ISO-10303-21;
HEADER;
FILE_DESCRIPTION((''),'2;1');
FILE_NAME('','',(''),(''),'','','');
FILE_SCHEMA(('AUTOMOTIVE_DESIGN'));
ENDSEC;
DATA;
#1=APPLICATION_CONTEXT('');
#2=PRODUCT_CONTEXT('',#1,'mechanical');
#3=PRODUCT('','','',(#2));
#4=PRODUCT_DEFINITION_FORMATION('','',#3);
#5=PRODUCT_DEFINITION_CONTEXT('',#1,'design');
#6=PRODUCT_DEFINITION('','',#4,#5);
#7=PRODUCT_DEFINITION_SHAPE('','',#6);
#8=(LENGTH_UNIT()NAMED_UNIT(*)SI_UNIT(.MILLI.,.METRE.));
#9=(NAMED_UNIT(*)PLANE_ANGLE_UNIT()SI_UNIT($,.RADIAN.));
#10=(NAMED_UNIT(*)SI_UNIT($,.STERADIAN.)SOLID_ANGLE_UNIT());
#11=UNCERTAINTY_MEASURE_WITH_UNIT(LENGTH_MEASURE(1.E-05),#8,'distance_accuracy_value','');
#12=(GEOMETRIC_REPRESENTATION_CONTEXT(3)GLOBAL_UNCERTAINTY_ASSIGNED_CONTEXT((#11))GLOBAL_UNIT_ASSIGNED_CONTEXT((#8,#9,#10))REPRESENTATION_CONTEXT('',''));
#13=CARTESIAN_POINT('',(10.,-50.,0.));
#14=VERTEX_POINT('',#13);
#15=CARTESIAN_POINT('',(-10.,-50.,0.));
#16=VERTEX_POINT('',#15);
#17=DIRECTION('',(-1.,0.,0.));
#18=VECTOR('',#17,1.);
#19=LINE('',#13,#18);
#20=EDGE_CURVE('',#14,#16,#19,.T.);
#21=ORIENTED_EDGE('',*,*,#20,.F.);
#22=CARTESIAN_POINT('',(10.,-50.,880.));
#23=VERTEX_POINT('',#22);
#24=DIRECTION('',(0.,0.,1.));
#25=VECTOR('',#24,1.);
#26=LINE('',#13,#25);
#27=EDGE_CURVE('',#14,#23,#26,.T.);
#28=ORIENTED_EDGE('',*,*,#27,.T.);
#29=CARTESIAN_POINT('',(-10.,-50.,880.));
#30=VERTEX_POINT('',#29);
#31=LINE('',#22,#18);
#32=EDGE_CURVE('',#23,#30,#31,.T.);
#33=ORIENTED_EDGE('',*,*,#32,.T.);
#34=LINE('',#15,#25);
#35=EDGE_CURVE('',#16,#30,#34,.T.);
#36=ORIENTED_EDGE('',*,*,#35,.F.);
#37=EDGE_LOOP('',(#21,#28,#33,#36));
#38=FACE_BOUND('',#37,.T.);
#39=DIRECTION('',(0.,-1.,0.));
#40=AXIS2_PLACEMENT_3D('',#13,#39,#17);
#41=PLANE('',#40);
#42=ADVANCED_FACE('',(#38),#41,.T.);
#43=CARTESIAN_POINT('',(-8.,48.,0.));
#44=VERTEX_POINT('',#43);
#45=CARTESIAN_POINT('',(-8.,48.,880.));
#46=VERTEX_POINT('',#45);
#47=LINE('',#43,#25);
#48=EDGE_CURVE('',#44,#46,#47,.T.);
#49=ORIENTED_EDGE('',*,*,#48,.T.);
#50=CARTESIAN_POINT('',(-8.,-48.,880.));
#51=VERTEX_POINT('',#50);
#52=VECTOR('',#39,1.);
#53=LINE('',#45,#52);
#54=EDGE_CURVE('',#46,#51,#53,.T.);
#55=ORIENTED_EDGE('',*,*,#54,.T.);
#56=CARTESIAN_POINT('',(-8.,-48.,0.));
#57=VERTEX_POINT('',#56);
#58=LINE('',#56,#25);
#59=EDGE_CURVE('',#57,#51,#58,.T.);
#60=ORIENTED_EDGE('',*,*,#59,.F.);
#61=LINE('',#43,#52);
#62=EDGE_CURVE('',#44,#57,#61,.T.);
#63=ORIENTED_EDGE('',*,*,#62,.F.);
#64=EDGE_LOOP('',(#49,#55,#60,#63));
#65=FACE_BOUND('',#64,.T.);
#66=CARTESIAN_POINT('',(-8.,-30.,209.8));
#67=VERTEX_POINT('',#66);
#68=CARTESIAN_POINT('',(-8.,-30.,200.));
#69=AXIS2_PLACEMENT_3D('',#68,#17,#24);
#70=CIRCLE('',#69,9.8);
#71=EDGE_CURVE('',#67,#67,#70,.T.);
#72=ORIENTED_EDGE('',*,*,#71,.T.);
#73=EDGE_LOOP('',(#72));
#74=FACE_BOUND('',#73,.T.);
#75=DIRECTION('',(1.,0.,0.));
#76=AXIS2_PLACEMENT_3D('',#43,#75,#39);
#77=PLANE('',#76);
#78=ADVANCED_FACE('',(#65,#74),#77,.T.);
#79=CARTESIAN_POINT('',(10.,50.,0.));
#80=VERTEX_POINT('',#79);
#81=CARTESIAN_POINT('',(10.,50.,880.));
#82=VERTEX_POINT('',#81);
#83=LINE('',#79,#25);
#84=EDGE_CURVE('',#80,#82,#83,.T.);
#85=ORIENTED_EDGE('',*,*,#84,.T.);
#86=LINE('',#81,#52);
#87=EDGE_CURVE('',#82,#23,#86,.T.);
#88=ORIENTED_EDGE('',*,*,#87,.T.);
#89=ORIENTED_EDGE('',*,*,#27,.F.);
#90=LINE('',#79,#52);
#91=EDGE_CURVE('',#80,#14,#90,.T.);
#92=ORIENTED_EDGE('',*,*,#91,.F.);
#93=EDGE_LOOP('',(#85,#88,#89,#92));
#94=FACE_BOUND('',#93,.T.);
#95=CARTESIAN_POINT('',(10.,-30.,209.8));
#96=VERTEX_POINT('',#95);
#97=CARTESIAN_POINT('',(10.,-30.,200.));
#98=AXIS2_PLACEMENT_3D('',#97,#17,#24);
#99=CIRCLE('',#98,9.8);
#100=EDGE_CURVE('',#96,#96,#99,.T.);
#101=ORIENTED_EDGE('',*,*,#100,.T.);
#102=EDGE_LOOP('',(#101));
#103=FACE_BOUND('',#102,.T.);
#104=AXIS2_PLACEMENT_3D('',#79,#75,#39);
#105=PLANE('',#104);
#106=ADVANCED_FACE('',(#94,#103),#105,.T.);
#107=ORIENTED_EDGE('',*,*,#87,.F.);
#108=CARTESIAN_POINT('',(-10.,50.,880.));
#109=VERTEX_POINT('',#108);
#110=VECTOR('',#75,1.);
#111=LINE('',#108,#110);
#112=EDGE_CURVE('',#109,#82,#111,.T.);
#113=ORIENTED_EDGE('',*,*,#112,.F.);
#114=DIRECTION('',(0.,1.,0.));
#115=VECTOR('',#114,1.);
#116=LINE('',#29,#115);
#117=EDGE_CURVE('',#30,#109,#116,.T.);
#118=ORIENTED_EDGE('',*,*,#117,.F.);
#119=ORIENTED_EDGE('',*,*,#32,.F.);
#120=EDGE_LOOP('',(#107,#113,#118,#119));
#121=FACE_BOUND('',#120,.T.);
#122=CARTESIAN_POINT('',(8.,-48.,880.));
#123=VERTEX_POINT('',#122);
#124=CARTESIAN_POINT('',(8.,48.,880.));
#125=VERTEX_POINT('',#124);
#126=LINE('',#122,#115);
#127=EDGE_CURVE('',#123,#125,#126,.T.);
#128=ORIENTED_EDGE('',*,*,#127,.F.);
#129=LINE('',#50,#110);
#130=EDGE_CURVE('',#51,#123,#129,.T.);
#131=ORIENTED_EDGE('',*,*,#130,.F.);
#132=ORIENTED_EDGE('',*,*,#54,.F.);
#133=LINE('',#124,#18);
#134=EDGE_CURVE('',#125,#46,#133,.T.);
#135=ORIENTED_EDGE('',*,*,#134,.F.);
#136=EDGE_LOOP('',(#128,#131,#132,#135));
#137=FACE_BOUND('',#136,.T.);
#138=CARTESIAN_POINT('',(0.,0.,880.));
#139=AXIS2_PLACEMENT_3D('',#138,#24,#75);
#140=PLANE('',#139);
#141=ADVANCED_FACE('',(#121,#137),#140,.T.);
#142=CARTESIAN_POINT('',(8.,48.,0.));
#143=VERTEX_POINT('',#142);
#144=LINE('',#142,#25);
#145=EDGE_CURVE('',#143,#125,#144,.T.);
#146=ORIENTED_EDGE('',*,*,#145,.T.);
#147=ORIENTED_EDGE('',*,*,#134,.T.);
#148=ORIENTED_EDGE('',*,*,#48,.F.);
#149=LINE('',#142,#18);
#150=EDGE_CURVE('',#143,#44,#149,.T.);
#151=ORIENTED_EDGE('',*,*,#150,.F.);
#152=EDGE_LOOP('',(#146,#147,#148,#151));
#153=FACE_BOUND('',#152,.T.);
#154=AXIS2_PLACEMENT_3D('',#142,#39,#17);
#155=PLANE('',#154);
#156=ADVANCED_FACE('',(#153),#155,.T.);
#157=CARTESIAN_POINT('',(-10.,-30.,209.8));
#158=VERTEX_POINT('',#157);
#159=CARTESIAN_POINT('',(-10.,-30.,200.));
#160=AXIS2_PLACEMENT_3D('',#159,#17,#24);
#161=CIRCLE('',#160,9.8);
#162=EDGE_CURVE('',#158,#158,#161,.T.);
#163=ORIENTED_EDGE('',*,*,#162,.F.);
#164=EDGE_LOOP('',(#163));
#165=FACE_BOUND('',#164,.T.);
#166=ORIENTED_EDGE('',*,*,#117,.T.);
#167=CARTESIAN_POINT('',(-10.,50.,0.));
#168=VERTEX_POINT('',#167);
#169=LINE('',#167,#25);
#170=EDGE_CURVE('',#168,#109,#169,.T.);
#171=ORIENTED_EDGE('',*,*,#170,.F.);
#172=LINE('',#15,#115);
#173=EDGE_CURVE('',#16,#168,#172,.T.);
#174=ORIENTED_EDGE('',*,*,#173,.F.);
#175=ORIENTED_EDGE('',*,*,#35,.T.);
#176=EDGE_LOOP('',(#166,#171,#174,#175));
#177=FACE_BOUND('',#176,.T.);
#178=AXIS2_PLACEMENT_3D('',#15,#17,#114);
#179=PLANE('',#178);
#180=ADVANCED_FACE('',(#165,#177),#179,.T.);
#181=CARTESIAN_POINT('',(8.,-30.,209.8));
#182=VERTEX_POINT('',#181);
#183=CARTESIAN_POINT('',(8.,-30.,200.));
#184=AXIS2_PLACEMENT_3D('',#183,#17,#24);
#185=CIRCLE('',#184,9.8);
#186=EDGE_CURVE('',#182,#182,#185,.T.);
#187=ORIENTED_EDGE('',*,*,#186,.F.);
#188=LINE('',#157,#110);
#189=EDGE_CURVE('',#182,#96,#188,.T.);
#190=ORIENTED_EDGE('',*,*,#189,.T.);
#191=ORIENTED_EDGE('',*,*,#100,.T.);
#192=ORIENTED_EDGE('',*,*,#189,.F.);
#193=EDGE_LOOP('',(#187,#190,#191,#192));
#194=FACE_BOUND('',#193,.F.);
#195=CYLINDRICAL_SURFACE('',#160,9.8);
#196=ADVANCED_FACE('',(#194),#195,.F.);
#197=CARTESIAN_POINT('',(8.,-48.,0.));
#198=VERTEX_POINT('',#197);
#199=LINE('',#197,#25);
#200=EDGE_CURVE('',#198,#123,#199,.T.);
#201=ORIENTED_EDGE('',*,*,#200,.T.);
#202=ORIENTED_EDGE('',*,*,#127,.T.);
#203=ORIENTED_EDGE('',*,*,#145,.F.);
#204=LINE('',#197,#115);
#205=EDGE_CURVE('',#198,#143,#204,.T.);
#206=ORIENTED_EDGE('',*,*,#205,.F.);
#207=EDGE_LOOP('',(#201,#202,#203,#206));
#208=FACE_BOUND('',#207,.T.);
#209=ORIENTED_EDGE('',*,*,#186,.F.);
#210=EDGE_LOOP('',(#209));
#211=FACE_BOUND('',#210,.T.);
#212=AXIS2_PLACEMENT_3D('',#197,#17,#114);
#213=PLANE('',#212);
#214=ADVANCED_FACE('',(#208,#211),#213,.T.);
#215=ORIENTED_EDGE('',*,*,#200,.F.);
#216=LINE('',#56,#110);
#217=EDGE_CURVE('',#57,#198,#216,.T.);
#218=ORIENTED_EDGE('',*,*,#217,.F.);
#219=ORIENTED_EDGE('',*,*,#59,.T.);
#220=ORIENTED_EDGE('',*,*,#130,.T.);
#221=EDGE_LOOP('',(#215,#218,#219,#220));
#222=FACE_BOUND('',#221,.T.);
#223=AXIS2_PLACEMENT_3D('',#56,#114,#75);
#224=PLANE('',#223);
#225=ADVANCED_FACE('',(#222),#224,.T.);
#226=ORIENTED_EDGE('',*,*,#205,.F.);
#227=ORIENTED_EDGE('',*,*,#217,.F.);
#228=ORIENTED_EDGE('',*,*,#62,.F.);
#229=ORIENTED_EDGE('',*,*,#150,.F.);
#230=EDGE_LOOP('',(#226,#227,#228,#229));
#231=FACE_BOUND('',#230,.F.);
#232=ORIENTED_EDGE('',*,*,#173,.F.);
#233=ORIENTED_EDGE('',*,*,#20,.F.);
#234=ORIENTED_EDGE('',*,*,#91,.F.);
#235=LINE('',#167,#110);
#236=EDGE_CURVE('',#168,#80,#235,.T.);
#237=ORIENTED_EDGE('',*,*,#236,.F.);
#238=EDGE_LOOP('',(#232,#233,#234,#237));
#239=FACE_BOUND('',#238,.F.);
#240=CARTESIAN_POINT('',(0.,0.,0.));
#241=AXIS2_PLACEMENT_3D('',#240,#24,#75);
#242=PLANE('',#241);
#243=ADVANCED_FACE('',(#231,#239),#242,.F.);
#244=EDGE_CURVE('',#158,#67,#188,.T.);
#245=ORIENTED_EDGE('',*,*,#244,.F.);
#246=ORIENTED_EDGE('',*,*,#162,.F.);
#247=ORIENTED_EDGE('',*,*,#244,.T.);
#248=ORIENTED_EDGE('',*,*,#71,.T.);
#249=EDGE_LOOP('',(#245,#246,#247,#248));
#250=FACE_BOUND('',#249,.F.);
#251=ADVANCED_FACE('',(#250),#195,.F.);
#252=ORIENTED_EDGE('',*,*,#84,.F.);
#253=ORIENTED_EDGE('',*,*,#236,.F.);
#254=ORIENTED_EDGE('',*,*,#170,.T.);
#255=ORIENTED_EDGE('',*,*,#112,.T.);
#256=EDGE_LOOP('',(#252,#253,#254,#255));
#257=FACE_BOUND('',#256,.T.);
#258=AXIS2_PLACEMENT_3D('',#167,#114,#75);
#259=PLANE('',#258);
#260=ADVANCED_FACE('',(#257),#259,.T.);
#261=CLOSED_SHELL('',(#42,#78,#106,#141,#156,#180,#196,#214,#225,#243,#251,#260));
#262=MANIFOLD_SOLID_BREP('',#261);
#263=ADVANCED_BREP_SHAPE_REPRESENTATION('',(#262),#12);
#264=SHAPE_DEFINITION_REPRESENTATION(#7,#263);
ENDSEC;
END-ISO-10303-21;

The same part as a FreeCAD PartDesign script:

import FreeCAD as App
import Part
import Sketcher
Q = App.Units.Quantity

doc = App.newDocument("Part")
body = doc.addObject("PartDesign::Body", "Body")

sketch1 = body.newObject("Sketcher::SketchObject", "Sketch")
sketch1.AttachmentSupport = (doc.getObject("XY_Plane"), [""])
sketch1.MapMode = "FlatFace"
sketch1.addGeometry(Part.LineSegment(App.Vector(10, 50, 0), App.Vector(-10, 50, 0)), False)
sketch1.addGeometry(Part.LineSegment(App.Vector(-10, 50, 0), App.Vector(-10, -50, 0)), False)
sketch1.addGeometry(Part.LineSegment(App.Vector(-10, -50, 0), App.Vector(10, -50, 0)), False)
sketch1.addGeometry(Part.LineSegment(App.Vector(10, -50, 0), App.Vector(10, 50, 0)), False)
sketch1.addGeometry(Part.LineSegment(App.Vector(8, -48, 0), App.Vector(-8, -48, 0)), False)
sketch1.addGeometry(Part.LineSegment(App.Vector(-8, -48, 0), App.Vector(-8, 48, 0)), False)
sketch1.addGeometry(Part.LineSegment(App.Vector(-8, 48, 0), App.Vector(8, 48, 0)), False)
sketch1.addGeometry(Part.LineSegment(App.Vector(8, 48, 0), App.Vector(8, -48, 0)), False)
sketch1.addConstraint(Sketcher.Constraint("Coincident", 0, 2, 1, 1))
sketch1.addConstraint(Sketcher.Constraint("Coincident", 1, 2, 2, 1))
sketch1.addConstraint(Sketcher.Constraint("Coincident", 2, 2, 3, 1))
sketch1.addConstraint(Sketcher.Constraint("Coincident", 3, 2, 0, 1))
sketch1.addConstraint(Sketcher.Constraint("Coincident", 4, 2, 5, 1))
sketch1.addConstraint(Sketcher.Constraint("Coincident", 5, 2, 6, 1))
sketch1.addConstraint(Sketcher.Constraint("Coincident", 6, 2, 7, 1))
sketch1.addConstraint(Sketcher.Constraint("Coincident", 7, 2, 4, 1))
sketch1.addConstraint(Sketcher.Constraint("Horizontal", 0))
sketch1.addConstraint(Sketcher.Constraint("Vertical", 1))
sketch1.addConstraint(Sketcher.Constraint("Horizontal", 2))
sketch1.addConstraint(Sketcher.Constraint("Vertical", 3))
sketch1.addConstraint(Sketcher.Constraint("Horizontal", 4))
sketch1.addConstraint(Sketcher.Constraint("Vertical", 5))
sketch1.addConstraint(Sketcher.Constraint("Horizontal", 6))
sketch1.addConstraint(Sketcher.Constraint("Vertical", 7))
sketch1.addConstraint(Sketcher.Constraint("Symmetric", 0, 2, 2, 2, -1, 1))
sketch1.addConstraint(Sketcher.Constraint("Symmetric", 4, 2, 6, 2, -1, 1))
sketch1.addConstraint(Sketcher.Constraint("DistanceX", 0, 2, 0, 1, Q("20 mm")))
sketch1.addConstraint(Sketcher.Constraint("DistanceX", 4, 2, 4, 1, Q("16 mm")))
sketch1.addConstraint(Sketcher.Constraint("DistanceY", 1, 2, 1, 1, Q("100 mm")))
sketch1.addConstraint(Sketcher.Constraint("DistanceY", 5, 1, 5, 2, Q("96 mm")))
pad1 = body.newObject("PartDesign::Pad", "Pad")
pad1.Profile = sketch1
pad1.Length = 880

sketch2 = body.newObject("Sketcher::SketchObject", "Sketch001")
sketch2.AttachmentSupport = (doc.getObject("YZ_Plane"), [""])
sketch2.MapMode = "FlatFace"
sketch2.AttachmentOffset = App.Placement(App.Vector(0, 0, -10), App.Rotation())
sketch2.addGeometry(Part.Circle(App.Vector(-30, 200, 0), App.Vector(0, 0, 1), 9.8), False)
sketch2.addConstraint(Sketcher.Constraint("Diameter", 0, Q("19.6 mm")))
sketch2.addConstraint(Sketcher.Constraint("DistanceY", -1, 1, 0, 3, Q("200 mm")))
sketch2.addConstraint(Sketcher.Constraint("DistanceX", 0, 3, -1, 1, Q("30 mm")))
pocket1 = body.newObject("PartDesign::Pocket", "Pocket")
pocket1.Profile = sketch2
pocket1.Length = 880
pocket1.Reversed = True

doc.recompute()
